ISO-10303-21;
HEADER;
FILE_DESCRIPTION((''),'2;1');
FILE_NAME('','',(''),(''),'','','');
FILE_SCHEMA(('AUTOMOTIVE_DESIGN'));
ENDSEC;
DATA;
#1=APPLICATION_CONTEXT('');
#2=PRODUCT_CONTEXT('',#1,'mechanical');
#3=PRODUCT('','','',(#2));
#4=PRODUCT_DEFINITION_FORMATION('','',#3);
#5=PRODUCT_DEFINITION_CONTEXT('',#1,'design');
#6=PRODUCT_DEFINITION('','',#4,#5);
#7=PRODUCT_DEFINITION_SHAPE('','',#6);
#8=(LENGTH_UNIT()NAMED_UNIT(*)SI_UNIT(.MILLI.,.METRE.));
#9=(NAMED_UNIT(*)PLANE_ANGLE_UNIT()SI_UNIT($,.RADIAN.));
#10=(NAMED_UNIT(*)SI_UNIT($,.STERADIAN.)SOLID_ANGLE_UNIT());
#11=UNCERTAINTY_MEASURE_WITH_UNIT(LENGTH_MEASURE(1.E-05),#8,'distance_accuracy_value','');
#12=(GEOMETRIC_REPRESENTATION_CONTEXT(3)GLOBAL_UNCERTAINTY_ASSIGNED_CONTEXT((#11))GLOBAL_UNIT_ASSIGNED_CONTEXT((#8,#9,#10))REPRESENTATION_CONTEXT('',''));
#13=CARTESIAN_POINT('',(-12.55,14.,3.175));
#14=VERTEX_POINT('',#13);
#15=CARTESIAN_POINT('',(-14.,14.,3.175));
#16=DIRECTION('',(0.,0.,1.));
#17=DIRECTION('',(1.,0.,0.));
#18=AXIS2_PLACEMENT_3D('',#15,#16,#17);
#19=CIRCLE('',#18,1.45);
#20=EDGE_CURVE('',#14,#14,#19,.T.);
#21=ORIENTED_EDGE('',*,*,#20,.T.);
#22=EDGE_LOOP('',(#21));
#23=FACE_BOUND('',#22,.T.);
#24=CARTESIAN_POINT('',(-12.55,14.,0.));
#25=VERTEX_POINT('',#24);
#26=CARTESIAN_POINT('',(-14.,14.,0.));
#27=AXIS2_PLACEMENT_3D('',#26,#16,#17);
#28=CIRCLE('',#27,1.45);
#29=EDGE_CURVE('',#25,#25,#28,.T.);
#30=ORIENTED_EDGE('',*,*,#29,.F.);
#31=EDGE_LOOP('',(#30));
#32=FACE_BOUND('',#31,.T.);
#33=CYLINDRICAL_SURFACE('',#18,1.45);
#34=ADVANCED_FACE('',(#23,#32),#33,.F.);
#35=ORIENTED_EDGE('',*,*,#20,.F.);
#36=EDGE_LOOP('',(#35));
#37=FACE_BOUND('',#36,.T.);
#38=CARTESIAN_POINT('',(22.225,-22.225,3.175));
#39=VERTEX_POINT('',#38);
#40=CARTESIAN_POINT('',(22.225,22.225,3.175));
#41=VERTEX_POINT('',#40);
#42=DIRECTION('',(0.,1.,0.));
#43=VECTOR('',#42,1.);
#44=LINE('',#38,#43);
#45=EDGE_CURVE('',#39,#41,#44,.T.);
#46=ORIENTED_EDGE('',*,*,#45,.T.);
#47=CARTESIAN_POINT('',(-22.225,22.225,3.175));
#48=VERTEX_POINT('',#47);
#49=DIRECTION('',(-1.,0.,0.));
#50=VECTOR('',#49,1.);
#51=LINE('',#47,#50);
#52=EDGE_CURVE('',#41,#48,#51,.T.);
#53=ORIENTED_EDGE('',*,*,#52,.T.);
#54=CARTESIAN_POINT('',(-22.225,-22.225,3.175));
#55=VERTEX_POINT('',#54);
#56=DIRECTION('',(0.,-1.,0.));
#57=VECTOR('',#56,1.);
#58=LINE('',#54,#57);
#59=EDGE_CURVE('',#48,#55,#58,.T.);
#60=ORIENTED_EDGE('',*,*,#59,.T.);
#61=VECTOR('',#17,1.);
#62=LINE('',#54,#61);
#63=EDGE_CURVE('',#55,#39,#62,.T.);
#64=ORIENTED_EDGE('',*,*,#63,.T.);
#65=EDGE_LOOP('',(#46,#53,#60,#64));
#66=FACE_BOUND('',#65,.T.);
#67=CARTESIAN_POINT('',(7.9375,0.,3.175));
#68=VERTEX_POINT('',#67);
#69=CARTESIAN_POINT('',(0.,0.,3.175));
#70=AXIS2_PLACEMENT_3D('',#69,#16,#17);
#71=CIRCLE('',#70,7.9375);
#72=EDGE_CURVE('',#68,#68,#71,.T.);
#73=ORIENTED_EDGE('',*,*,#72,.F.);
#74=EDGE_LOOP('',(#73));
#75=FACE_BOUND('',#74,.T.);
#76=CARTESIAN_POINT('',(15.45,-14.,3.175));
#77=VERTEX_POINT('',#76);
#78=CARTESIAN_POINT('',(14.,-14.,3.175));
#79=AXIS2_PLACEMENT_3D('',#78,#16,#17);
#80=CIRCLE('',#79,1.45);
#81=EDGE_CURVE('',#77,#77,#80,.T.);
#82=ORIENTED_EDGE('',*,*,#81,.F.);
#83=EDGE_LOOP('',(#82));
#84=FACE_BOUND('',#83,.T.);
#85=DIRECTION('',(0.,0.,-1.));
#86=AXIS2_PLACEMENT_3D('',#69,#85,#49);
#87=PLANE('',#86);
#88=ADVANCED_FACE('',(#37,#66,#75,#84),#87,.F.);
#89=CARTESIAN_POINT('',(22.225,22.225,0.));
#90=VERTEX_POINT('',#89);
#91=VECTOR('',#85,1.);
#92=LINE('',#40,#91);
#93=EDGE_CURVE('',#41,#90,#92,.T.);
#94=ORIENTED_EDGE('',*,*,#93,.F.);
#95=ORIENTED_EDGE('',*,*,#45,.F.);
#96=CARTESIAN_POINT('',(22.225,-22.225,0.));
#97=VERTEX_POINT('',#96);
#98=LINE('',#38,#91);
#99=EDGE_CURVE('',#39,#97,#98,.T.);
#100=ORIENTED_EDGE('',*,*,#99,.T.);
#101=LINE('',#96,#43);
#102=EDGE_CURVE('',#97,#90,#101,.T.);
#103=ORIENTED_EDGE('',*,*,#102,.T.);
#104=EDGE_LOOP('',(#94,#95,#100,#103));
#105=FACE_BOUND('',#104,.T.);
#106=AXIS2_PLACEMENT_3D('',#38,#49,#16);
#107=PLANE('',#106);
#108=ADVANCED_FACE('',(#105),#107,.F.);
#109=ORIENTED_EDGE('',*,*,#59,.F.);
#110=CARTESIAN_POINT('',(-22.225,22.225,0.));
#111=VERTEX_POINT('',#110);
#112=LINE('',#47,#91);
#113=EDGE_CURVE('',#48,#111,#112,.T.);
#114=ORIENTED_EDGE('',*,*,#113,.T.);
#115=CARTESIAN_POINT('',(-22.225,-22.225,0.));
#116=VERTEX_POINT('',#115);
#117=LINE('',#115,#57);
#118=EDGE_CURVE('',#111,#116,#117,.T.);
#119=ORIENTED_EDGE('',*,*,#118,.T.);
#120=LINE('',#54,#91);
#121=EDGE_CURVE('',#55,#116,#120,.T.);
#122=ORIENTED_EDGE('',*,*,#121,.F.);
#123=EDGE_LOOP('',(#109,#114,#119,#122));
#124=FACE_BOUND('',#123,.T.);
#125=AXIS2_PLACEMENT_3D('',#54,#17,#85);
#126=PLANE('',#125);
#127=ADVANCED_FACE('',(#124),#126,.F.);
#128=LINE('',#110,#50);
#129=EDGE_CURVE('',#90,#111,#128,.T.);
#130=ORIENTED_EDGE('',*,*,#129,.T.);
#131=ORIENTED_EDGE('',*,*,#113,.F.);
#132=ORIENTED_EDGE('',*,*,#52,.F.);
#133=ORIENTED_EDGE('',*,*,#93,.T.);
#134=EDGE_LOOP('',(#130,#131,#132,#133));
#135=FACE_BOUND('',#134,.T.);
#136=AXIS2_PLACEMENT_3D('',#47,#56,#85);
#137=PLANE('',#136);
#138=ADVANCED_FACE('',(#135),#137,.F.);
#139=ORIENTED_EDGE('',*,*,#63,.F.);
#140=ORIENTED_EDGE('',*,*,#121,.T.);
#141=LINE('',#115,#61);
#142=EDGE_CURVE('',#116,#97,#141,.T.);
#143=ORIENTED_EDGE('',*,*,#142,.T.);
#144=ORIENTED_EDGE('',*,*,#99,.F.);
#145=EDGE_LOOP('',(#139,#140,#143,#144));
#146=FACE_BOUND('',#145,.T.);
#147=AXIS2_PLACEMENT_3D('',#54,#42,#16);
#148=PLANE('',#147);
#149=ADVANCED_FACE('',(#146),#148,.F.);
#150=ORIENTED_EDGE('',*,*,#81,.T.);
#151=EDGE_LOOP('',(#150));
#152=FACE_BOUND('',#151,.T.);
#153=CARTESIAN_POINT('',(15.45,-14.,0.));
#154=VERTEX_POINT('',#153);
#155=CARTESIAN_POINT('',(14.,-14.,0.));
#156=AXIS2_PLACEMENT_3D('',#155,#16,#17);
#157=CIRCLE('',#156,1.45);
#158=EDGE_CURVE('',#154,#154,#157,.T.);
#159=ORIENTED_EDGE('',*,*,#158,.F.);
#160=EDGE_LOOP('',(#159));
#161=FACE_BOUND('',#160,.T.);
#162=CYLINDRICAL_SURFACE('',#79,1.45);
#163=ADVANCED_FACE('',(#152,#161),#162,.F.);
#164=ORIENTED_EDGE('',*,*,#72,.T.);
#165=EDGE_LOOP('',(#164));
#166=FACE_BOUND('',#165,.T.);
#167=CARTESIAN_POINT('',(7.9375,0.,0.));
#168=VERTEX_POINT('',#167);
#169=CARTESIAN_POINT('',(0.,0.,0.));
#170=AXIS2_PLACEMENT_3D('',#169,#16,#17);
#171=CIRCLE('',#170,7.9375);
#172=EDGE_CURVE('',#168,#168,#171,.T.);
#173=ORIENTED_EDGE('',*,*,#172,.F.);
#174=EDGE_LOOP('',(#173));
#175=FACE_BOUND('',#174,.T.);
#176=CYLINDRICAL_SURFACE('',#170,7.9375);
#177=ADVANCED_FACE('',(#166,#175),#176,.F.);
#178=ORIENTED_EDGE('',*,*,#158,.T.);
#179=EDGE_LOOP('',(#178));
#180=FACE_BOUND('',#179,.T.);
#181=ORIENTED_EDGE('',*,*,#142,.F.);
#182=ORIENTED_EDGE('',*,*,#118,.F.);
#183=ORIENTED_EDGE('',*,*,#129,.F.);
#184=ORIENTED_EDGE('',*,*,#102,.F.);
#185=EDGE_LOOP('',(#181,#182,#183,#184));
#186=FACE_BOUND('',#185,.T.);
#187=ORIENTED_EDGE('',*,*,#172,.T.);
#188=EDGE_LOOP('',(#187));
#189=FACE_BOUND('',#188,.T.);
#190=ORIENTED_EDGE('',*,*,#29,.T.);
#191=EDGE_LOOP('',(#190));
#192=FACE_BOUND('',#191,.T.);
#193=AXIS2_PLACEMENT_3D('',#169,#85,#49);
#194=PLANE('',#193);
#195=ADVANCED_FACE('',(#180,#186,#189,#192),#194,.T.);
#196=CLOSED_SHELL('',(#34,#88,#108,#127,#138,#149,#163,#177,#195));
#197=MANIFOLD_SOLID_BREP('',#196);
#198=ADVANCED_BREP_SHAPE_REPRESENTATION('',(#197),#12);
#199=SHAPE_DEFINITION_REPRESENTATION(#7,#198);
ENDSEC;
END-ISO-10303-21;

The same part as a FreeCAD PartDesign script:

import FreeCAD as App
import Part
import Sketcher
from FreeCAD import Vector
Q = App.Units.Quantity


def add_polygon(sketch, points):
    """Adds a closed chain of lines whose ends are joined by coincident constraints."""
    first, n = sketch.GeometryCount, len(points)
    for a, b in zip(points, points[1:] + points[:1]):
        sketch.addGeometry(Part.LineSegment(App.Vector(*a, 0), App.Vector(*b, 0)), False)
    for i in range(n):
        sketch.addConstraint(Sketcher.Constraint("Coincident", first + i, 2, first + (i + 1) % n, 1))

doc = App.newDocument("Part")
body = doc.addObject("PartDesign::Body", "Body")

# Sketch on XY plane
sketch1 = doc.addObject("Sketcher::SketchObject", "Sketch")
body.addObject(sketch1)
sketch1.AttachmentSupport = (doc.XY_Plane, [""])
sketch1.MapMode = "FlatFace"
add_polygon(sketch1, [(-22, 22), (-22, -22), (22, -22), (22, 22)])  # lines 0-3
sketch1.addConstraint(Sketcher.Constraint("Vertical", 0))
sketch1.addConstraint(Sketcher.Constraint("Horizontal", 1))
sketch1.addConstraint(Sketcher.Constraint("Vertical", 2))
sketch1.addConstraint(Sketcher.Constraint("Horizontal", 3))
sketch1.addConstraint(Sketcher.Constraint("Symmetric", 0, 2, 2, 2, -1, 1))
sketch1.addConstraint(Sketcher.Constraint("Equal", 3, 0))
sketch1.addConstraint(Sketcher.Constraint("DistanceX", 1, 1, 1, 2, Q("1.75 in")))
pad1 = doc.addObject("PartDesign::Pad", "Pad")
body.addObject(pad1)
pad1.Profile = sketch1
pad1.Length = Q("0.125 in")

# Sketch on XY plane
sketch2 = doc.addObject("Sketcher::SketchObject", "Sketch001")
body.addObject(sketch2)
sketch2.AttachmentSupport = (doc.XY_Plane, [""])
sketch2.MapMode = "FlatFace"
sketch2.AttachmentOffset = App.Placement(Vector(0, 0, 0.125 * 25.4), App.Rotation())
sketch2.addGeometry(Part.Circle(Vector(-14, 14, 0), Vector(0, 0, 1), 1.4), False)
sketch2.addGeometry(Part.Circle(Vector(14, -14, 0), Vector(0, 0, 1), 1.4), False)
sketch2.addConstraint(Sketcher.Constraint("Equal", 0, 1))
sketch2.addConstraint(Sketcher.Constraint("Symmetric", 0, 3, 1, 3, -1, 1))
sketch2.addConstraint(Sketcher.Constraint("Diameter", 0, Q("2.9 mm")))
sketch2.addConstraint(Sketcher.Constraint("DistanceX", 0, 3, -1, 1, Q("14 mm")))
sketch2.addConstraint(Sketcher.Constraint("DistanceY", -1, 1, 0, 3, Q("14 mm")))
doc.recompute()
hole = doc.addObject("PartDesign::Hole", "Hole")
body.addObject(hole)
hole.Profile = sketch2
hole.ThreadType = "None"
hole.Diameter = 2.9
hole.DepthType = "ThroughAll"

# Sketch on XY plane
sketch3 = doc.addObject("Sketcher::SketchObject", "Sketch002")
body.addObject(sketch3)
sketch3.AttachmentSupport = (doc.XY_Plane, [""])
sketch3.MapMode = "FlatFace"
sketch3.AttachmentOffset = App.Placement(Vector(0, 0, 0.125 * 25.4), App.Rotation())
sketch3.addGeometry(Part.Circle(Vector(0, 0, 0), Vector(0, 0, 1), 8), False)
sketch3.addConstraint(Sketcher.Constraint("Coincident", 0, 3, -1, 1))
sketch3.addConstraint(Sketcher.Constraint("Diameter", 0, Q("0.625 in")))
pocket1 = doc.addObject("PartDesign::Pocket", "Pocket")
body.addObject(pocket1)
pocket1.Profile = sketch3
pocket1.Type = "ThroughAll"

doc.recompute()
